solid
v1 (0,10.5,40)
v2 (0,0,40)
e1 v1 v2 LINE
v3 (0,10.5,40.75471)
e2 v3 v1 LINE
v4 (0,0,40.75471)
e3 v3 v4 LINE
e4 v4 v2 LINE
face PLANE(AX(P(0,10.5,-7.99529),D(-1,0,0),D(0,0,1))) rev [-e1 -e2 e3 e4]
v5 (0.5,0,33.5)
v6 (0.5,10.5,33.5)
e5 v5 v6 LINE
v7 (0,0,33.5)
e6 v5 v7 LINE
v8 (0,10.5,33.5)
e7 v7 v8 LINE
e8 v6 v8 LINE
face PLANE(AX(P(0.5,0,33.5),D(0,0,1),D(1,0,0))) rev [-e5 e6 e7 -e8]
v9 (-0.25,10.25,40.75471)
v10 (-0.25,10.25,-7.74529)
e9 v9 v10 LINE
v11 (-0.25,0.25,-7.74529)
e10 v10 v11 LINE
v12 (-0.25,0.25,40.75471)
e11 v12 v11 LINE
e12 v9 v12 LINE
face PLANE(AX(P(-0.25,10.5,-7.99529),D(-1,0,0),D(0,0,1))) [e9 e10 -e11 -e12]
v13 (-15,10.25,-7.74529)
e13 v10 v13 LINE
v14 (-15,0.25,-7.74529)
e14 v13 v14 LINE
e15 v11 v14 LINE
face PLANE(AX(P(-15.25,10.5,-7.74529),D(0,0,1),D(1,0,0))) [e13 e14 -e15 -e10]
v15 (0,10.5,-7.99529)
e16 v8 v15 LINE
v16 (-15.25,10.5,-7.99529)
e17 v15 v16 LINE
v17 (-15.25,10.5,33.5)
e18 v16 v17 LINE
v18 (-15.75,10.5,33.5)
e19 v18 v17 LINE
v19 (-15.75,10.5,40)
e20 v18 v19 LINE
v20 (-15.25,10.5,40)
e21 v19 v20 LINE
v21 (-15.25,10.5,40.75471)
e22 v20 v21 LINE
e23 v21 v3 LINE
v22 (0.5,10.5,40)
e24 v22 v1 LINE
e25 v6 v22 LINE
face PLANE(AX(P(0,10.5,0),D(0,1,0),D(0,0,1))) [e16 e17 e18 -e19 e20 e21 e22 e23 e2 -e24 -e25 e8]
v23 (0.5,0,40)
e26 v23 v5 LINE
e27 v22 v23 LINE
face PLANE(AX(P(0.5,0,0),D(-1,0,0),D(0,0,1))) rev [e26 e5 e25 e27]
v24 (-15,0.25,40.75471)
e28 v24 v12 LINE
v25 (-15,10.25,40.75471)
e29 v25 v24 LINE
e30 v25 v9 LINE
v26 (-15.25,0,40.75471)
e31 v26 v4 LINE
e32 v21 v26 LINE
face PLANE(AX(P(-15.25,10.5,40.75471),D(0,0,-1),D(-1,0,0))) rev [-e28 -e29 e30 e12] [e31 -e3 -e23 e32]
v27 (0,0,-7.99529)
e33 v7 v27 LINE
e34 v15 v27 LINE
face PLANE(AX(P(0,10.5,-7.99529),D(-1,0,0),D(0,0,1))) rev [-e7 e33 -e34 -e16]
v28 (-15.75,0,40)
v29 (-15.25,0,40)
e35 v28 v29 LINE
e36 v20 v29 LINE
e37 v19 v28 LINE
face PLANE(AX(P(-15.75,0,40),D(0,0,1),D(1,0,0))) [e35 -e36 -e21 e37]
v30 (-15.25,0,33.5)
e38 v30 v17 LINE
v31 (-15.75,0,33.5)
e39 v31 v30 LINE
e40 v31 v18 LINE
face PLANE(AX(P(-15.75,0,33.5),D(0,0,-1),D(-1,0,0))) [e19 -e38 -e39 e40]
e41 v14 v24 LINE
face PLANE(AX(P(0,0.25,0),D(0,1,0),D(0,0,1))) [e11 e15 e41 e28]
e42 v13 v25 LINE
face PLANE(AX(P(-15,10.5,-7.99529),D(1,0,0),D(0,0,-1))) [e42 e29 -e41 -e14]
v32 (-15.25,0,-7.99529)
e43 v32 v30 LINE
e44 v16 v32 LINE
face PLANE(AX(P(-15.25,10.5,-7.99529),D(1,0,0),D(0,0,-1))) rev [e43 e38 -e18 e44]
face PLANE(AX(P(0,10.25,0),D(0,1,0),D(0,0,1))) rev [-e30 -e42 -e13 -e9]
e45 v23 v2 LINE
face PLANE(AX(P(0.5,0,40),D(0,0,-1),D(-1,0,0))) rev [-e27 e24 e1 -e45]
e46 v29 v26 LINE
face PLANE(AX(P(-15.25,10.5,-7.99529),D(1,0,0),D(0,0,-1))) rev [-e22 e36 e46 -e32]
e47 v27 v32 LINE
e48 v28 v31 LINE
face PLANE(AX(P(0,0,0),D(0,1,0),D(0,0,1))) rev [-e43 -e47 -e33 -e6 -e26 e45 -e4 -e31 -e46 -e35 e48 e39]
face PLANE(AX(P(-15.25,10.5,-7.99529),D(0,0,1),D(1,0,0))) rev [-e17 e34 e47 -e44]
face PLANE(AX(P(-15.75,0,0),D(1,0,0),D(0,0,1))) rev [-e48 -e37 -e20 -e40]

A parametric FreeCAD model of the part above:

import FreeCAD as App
import Part
import Sketcher
from FreeCAD import Vector


def faces_at(feature, points):
    """Names of the faces that lie closest to the given points."""
    faces = feature.Shape.Faces
    near = lambda p: min(range(len(faces)), key=lambda i: faces[i].distToShape(Part.Vertex(*p))[0])
    return sorted({f"Face{near(p) + 1}" for p in points})


def add_polygon(sketch, points):
    """Adds a closed chain of lines whose ends are joined by coincident constraints."""
    first, n = sketch.GeometryCount, len(points)
    for a, b in zip(points, points[1:] + points[:1]):
        sketch.addGeometry(Part.LineSegment(App.Vector(*a, 0), App.Vector(*b, 0)), False)
    for i in range(n):
        sketch.addConstraint(Sketcher.Constraint("Coincident", first + i, 2, first + (i + 1) % n, 1))

doc = App.newDocument("Part")
body = doc.addObject("PartDesign::Body", "Body")

sketch1 = body.newObject("Sketcher::SketchObject", "Sketch")
sketch1.AttachmentSupport = (doc.getObject("XZ_Plane"), [""])
sketch1.MapMode = "FlatFace"
add_polygon(sketch1, [(-15, -8), (-15, 41), (0, 41), (0, -8)])
sketch1.addConstraint([
    Sketcher.Constraint("Vertical", 0),
    Sketcher.Constraint("Horizontal", 1),
    Sketcher.Constraint("Vertical", 2),
    Sketcher.Constraint("Horizontal", 3),
    Sketcher.Constraint("PointOnObject", 1, 2, -2),
    Sketcher.Constraint("DistanceX", 1, 1, 1, 2, 15.25),
    Sketcher.Constraint("DistanceY", 0, 1, 0, 2, 48.75),
    Sketcher.Constraint("DistanceY", -1, 1, 0, 2, 40.75471),
])
pad1 = body.newObject("PartDesign::Pad", "Pad")
pad1.Profile = sketch1
pad1.Length = 10.5
pad1.Reversed = True
doc.recompute()

thickness = body.newObject("PartDesign::Thickness", "Thickness")
thickness.Base = (pad1, faces_at(pad1, [(-7.625, 5.25, 40.755)]))
thickness.Value = 0.25
thickness.Reversed = True
thickness.Join = "Intersection"

sketch2 = body.newObject("Sketcher::SketchObject", "Sketch001")
sketch2.AttachmentSupport = (doc.getObject("YZ_Plane"), [""])
sketch2.MapMode = "FlatFace"
add_polygon(sketch2, [(10, 40), (0, 40), (0, 34), (10, 34)])
sketch2.addConstraint([
    Sketcher.Constraint("Horizontal", 0),
    Sketcher.Constraint("Vertical", 1),
    Sketcher.Constraint("Horizontal", 2),
    Sketcher.Constraint("Vertical", 3),
    Sketcher.Constraint("PointOnObject", 0, 2, -2),
    Sketcher.Constraint("DistanceX", 0, 2, 0, 1, 10.5),
    Sketcher.Constraint("DistanceY", 1, 2, 1, 1, 6.5),
    Sketcher.Constraint("DistanceY", -1, 1, 0, 2, 40.0),
])
pad2 = body.newObject("PartDesign::Pad", "Pad001")
pad2.Profile = sketch2
pad2.Length = 0.5
doc.recompute()

datumplane = body.newObject("PartDesign::Plane", "DatumPlane")
datumplane.AttachmentSupport = (doc.getObject("YZ_Plane"), [""])
datumplane.MapMode = "FlatFace"
datumplane.AttachmentOffset = App.Placement(Vector(0, 0, -7.625), App.Rotation())
mirrored = body.newObject("PartDesign::Mirrored", "Mirrored")
mirrored.Originals = [pad2]
mirrored.MirrorPlane = (datumplane, [""])
body.Tip = mirrored

doc.recompute()
